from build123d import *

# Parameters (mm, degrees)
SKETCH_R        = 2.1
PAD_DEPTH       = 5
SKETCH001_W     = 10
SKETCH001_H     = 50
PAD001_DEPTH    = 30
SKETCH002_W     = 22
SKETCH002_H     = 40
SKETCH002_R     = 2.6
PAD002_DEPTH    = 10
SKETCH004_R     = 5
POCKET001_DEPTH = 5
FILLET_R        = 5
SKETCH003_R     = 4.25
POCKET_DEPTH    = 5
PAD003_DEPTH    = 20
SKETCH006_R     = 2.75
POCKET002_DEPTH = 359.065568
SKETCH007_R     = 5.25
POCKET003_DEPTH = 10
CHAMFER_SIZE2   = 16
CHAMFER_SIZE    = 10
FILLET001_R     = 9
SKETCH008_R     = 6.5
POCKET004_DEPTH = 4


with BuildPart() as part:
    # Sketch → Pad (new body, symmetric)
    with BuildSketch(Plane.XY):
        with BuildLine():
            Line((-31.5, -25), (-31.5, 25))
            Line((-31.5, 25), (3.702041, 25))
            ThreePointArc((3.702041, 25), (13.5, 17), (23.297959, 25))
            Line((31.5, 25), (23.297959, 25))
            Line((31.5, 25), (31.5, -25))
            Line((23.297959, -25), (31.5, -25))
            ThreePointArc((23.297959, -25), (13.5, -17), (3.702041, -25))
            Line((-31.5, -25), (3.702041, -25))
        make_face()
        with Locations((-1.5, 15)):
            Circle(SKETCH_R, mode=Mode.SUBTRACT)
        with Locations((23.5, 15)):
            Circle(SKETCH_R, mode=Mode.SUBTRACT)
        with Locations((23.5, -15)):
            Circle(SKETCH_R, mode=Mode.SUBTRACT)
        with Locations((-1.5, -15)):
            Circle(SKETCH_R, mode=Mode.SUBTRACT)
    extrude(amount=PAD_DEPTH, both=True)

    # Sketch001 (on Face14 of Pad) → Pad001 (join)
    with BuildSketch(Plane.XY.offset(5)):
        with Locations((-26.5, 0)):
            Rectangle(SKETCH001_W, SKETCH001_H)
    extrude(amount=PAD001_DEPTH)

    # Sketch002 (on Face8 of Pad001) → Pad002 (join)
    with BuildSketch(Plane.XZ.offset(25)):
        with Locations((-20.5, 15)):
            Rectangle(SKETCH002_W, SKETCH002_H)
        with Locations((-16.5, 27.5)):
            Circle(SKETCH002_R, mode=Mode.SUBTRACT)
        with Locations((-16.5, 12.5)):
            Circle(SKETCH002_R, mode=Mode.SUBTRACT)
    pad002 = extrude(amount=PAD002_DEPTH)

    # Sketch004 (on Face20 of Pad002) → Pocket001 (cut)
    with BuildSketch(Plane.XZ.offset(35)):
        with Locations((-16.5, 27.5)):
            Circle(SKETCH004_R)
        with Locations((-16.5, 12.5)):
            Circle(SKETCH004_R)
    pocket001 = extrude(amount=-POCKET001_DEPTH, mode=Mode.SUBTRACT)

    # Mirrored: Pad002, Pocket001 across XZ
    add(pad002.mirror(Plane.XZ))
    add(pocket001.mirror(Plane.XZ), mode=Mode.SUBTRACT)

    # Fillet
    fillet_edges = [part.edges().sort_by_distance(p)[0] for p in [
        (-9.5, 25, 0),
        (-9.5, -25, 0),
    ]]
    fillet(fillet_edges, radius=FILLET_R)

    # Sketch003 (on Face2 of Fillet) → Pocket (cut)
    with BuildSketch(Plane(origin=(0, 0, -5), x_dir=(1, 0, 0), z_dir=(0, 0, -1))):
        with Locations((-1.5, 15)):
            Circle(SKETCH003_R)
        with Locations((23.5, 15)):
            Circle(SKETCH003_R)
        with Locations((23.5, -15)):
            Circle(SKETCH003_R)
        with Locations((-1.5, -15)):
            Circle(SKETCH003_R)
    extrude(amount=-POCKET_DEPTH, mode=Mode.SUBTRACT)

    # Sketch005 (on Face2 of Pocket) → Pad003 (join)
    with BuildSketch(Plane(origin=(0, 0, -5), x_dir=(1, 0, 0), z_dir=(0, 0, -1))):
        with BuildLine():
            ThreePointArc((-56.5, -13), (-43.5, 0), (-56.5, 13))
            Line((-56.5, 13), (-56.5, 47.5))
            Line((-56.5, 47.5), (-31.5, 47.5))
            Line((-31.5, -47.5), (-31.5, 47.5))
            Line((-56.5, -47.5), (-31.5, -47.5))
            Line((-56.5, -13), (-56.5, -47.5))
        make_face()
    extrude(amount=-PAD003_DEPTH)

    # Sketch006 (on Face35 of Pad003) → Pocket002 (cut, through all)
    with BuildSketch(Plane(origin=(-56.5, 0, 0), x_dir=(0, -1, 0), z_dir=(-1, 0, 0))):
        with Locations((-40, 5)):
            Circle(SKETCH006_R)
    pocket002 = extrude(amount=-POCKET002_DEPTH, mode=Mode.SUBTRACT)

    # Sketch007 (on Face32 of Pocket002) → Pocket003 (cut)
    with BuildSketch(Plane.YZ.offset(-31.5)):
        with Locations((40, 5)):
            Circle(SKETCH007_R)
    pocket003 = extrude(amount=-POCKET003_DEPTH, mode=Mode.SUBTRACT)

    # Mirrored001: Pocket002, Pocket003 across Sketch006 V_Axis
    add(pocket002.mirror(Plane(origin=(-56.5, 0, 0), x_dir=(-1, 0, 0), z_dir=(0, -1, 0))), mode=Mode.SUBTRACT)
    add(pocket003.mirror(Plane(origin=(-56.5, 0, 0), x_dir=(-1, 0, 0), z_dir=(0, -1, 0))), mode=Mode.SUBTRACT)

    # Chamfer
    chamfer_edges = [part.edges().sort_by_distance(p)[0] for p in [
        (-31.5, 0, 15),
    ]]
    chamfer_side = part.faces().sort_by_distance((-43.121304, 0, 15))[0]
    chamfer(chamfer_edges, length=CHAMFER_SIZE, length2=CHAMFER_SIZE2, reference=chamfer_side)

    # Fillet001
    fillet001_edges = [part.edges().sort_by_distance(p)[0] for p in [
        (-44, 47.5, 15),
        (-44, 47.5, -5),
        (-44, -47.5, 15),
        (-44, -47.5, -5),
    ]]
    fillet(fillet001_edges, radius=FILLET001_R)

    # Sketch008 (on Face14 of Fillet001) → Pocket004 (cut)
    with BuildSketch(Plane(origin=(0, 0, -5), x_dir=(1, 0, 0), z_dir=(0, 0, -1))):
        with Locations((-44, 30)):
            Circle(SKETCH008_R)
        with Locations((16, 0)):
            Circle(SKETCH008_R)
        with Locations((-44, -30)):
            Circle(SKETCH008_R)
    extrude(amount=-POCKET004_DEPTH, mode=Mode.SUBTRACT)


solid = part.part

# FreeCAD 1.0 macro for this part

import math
import FreeCAD as App
import Part
import Sketcher
Q = App.Units.Quantity


def edges_at(feature, points):
    """Names of the edges that pass closest to the given points."""
    edges = feature.Shape.Edges
    near = lambda p: min(range(len(edges)), key=lambda i: edges[i].distToShape(Part.Vertex(*p))[0])
    return sorted({f"Edge{near(p) + 1}" for p in points})


def add_polygon(sketch, points):
    """Adds a closed chain of lines whose ends are joined by coincident constraints."""
    first, n = sketch.GeometryCount, len(points)
    for a, b in zip(points, points[1:] + points[:1]):
        sketch.addGeometry(Part.LineSegment(App.Vector(*a, 0), App.Vector(*b, 0)), False)
    for i in range(n):
        sketch.addConstraint(Sketcher.Constraint("Coincident", first + i, 2, first + (i + 1) % n, 1))

doc = App.newDocument("Part")
body = doc.addObject("PartDesign::Body", "Body")

# Sketch on XY plane
sketch1 = doc.addObject("Sketcher::SketchObject", "Sketch")
body.addObject(sketch1)
sketch1.AttachmentSupport = (doc.XY_Plane, [""])
sketch1.MapMode = "FlatFace"
sketch1.addGeometry([
    Part.LineSegment(App.Vector(-31.5, 25, 0), App.Vector(-31.5, -25, 0)),  # 0
    Part.LineSegment(App.Vector(-31.5, -25, 0), App.Vector(3.702041, -25, 0)),  # 1
    Part.ArcOfCircle(Part.Circle(App.Vector(13.5, -27, 0), App.Vector(0, 0, 1), 10), math.radians(11.536959), math.radians(168.463041)),  # 2
    Part.LineSegment(App.Vector(23.297959, -25, 0), App.Vector(31.5, -25, 0)),  # 3
    Part.LineSegment(App.Vector(31.5, -25, 0), App.Vector(31.5, 25, 0)),  # 4
    Part.LineSegment(App.Vector(31.5, 25, 0), App.Vector(23.297959, 25, 0)),  # 5
    Part.ArcOfCircle(Part.Circle(App.Vector(13.5, 27, 0), App.Vector(0, 0, 1), 10), math.radians(-168.463041), math.radians(-11.536959)),  # 6
    Part.LineSegment(App.Vector(3.702041, 25, 0), App.Vector(-31.5, 25, 0)),  # 7
    Part.Circle(App.Vector(23.5, -15, 0), App.Vector(0, 0, 1), 2.1),  # 8
    Part.Circle(App.Vector(-1.5, -15, 0), App.Vector(0, 0, 1), 2.1),  # 9
    Part.Circle(App.Vector(23.5, 15, 0), App.Vector(0, 0, 1), 2.1),  # 10
    Part.Circle(App.Vector(-1.5, 15, 0), App.Vector(0, 0, 1), 2.1),  # 11
], False)
sketch1.addConstraint([
    Sketcher.Constraint("Coincident", 0, 2, 1, 1),
    Sketcher.Constraint("Coincident", 1, 2, 2, 2),
    Sketcher.Constraint("Coincident", 2, 1, 3, 1),
    Sketcher.Constraint("Coincident", 3, 2, 4, 1),
    Sketcher.Constraint("Coincident", 4, 2, 5, 1),
    Sketcher.Constraint("Coincident", 5, 2, 6, 2),
    Sketcher.Constraint("Coincident", 6, 1, 7, 1),
    Sketcher.Constraint("Coincident", 7, 2, 0, 1),
    Sketcher.Constraint("Vertical", 0),
    Sketcher.Constraint("Horizontal", 1),
    Sketcher.Constraint("Horizontal", 3),
    Sketcher.Constraint("Vertical", 4),
    Sketcher.Constraint("Horizontal", 5),
    Sketcher.Constraint("Horizontal", 7),
    Sketcher.Constraint("Equal", 2, 6),
    Sketcher.Constraint("Equal", 8, 9),
    Sketcher.Constraint("Equal", 9, 10),
    Sketcher.Constraint("Equal", 10, 11),
    Sketcher.Constraint("Symmetric", 0, 2, 4, 2, -1, 1),
    Sketcher.Constraint("Symmetric", 2, 3, 6, 3, -1),
    Sketcher.Constraint("Symmetric", 8, 3, 10, 3, -1),
    Sketcher.Constraint("Symmetric", 9, 3, 11, 3, -1),
    Sketcher.Constraint("Horizontal", 8, 3, 9, 3),
    Sketcher.Constraint("Horizontal", 1, 2, 2, 1),
    Sketcher.Constraint("Horizontal", 5, 2, 6, 1),
    Sketcher.Constraint("Radius", 2, Q("10 mm")),
    Sketcher.Constraint("Diameter", 8, Q("4.2 mm")),
    Sketcher.Constraint("DistanceY", 0, 2, 0, 1, Q("50 mm")),
    Sketcher.Constraint("DistanceY", 2, 3, -1, 1, Q("27 mm")),
    Sketcher.Constraint("DistanceY", 8, 3, -1, 1, Q("15 mm")),
    Sketcher.Constraint("DistanceX", 2, 3, 8, 3, Q("10 mm")),
    Sketcher.Constraint("DistanceX", 9, 3, 2, 3, Q("15 mm")),
    Sketcher.Constraint("DistanceX", 0, 2, 9, 3, Q("30 mm")),
    Sketcher.Constraint("DistanceX", 8, 3, 3, 2, Q("8 mm")),
])
pad1 = doc.addObject("PartDesign::Pad", "Pad")
body.addObject(pad1)
pad1.Profile = sketch1
pad1.Length = 10
pad1.Midplane = True

# Sketch on XY plane
sketch2 = doc.addObject("Sketcher::SketchObject", "Sketch001")
body.addObject(sketch2)
sketch2.AttachmentSupport = (doc.XY_Plane, [""])
sketch2.MapMode = "FlatFace"
sketch2.AttachmentOffset = App.Placement(App.Vector(0, 0, 5), App.Rotation())
add_polygon(sketch2, [(-31.5, 25), (-31.5, -25), (-21.5, -25), (-21.5, 25)])  # lines 0-3
sketch2.addConstraint([
    Sketcher.Constraint("Vertical", 0),
    Sketcher.Constraint("Horizontal", 1),
    Sketcher.Constraint("Vertical", 2),
    Sketcher.Constraint("Horizontal", 3),
    Sketcher.Constraint("DistanceX", 1, 1, 1, 2, Q("10 mm")),
    Sketcher.Constraint("DistanceY", 0, 2, 0, 1, Q("50 mm")),
    Sketcher.Constraint("DistanceY", 0, 2, -1, 1, Q("25 mm")),
    Sketcher.Constraint("DistanceX", 0, 2, -1, 1, Q("31.5 mm")),
])
pad2 = doc.addObject("PartDesign::Pad", "Pad001")
body.addObject(pad2)
pad2.Profile = sketch2
pad2.Length = 30

# Sketch on XZ plane
sketch3 = doc.addObject("Sketcher::SketchObject", "Sketch002")
body.addObject(sketch3)
sketch3.AttachmentSupport = (doc.XZ_Plane, [""])
sketch3.MapMode = "FlatFace"
sketch3.AttachmentOffset = App.Placement(App.Vector(0, 0, 25), App.Rotation())
add_polygon(sketch3, [(-31.5, 35), (-31.5, -5), (-9.5, -5), (-9.5, 35)])  # lines 0-3
sketch3.addGeometry(Part.Circle(App.Vector(-16.5, 12.5, 0), App.Vector(0, 0, 1), 2.6), False)  # 4
sketch3.addGeometry(Part.Circle(App.Vector(-16.5, 27.5, 0), App.Vector(0, 0, 1), 2.6), False)  # 5
sketch3.addConstraint([
    Sketcher.Constraint("Vertical", 0),
    Sketcher.Constraint("Horizontal", 1),
    Sketcher.Constraint("Vertical", 2),
    Sketcher.Constraint("Horizontal", 3),
    Sketcher.Constraint("Equal", 4, 5),
    Sketcher.Constraint("Vertical", 4, 3, 5, 3),
    Sketcher.Constraint("Diameter", 4, Q("5.2 mm")),
    Sketcher.Constraint("DistanceX", 1, 1, 1, 2, Q("22 mm")),
    Sketcher.Constraint("DistanceY", 0, 2, 0, 1, Q("40 mm")),
    Sketcher.Constraint("DistanceY", 0, 2, -1, 1, Q("5 mm")),
    Sketcher.Constraint("DistanceY", 4, 3, 5, 3, Q("15 mm")),
    Sketcher.Constraint("DistanceX", 0, 2, 4, 3, Q("15 mm")),
    Sketcher.Constraint("DistanceX", 4, 3, -1, 1, Q("16.5 mm")),
    Sketcher.Constraint("DistanceY", -1, 1, 4, 3, Q("12.5 mm")),
])
pad3 = doc.addObject("PartDesign::Pad", "Pad002")
body.addObject(pad3)
pad3.Profile = sketch3
pad3.Length = 10

# Sketch on XZ plane
sketch4 = doc.addObject("Sketcher::SketchObject", "Sketch003")
body.addObject(sketch4)
sketch4.AttachmentSupport = (doc.XZ_Plane, [""])
sketch4.MapMode = "FlatFace"
sketch4.AttachmentOffset = App.Placement(App.Vector(0, 0, 35), App.Rotation())
sketch4.addGeometry([
    Part.Circle(App.Vector(-16.5, 27.5, 0), App.Vector(0, 0, 1), 5),
    Part.Circle(App.Vector(-16.5, 12.5, 0), App.Vector(0, 0, 1), 5),
], False)
sketch4.addConstraint([
    Sketcher.Constraint("Equal", 0, 1),
    Sketcher.Constraint("Vertical", 0, 3, 1, 3),
    Sketcher.Constraint("Diameter", 0, Q("10 mm")),
    Sketcher.Constraint("DistanceY", 1, 3, 0, 3, Q("15 mm")),
    Sketcher.Constraint("DistanceX", 0, 3, -1, 1, Q("16.5 mm")),
    Sketcher.Constraint("DistanceY", -1, 1, 0, 3, Q("27.5 mm")),
])
pocket1 = doc.addObject("PartDesign::Pocket", "Pocket")
body.addObject(pocket1)
pocket1.Profile = sketch4
pocket1.Length = 5
doc.recompute()

mirrored = doc.addObject("PartDesign::Mirrored", "Mirrored")
body.addObject(mirrored)
mirrored.Originals = [pad3, pocket1]
mirrored.MirrorPlane = (doc.XZ_Plane, [""])
body.Tip = mirrored
doc.recompute()

fillet = doc.addObject("PartDesign::Fillet", "Fillet")
body.addObject(fillet)
fillet.Base = (mirrored, edges_at(mirrored, [(-9.5, 25, 0), (-9.5, -25, 0)]))
fillet.Radius = 5

# Sketch on XY plane
sketch5 = doc.addObject("Sketcher::SketchObject", "Sketch004")
body.addObject(sketch5)
sketch5.AttachmentSupport = (doc.XY_Plane, [""])
sketch5.MapMode = "FlatFace"
sketch5.AttachmentOffset = App.Placement(App.Vector(0, 0, -5), App.Rotation())
sketch5.addGeometry([
    Part.Circle(App.Vector(-1.5, -15, 0), App.Vector(0, 0, 1), 4.25),
    Part.Circle(App.Vector(23.5, -15, 0), App.Vector(0, 0, 1), 4.25),
    Part.Circle(App.Vector(23.5, 15, 0), App.Vector(0, 0, 1), 4.25),
    Part.Circle(App.Vector(-1.5, 15, 0), App.Vector(0, 0, 1), 4.25),
], False)
sketch5.addConstraint([
    Sketcher.Constraint("Equal", 0, 1),
    Sketcher.Constraint("Equal", 1, 2),
    Sketcher.Constraint("Equal", 2, 3),
    Sketcher.Constraint("Symmetric", 1, 3, 2, 3, -1),
    Sketcher.Constraint("Symmetric", 0, 3, 3, 3, -1),
    Sketcher.Constraint("Horizontal", 0, 3, 1, 3),
    Sketcher.Constraint("Diameter", 0, Q("8.5 mm")),
    Sketcher.Constraint("DistanceY", 0, 3, -1, 1, Q("15 mm")),
    Sketcher.Constraint("DistanceX", 0, 3, 1, 3, Q("25 mm")),
    Sketcher.Constraint("DistanceX", 0, 3, -1, 1, Q("1.5 mm")),
])
pocket2 = doc.addObject("PartDesign::Pocket", "Pocket001")
body.addObject(pocket2)
pocket2.Profile = sketch5
pocket2.Length = 5
pocket2.Reversed = True

# Sketch on XY plane
sketch6 = doc.addObject("Sketcher::SketchObject", "Sketch005")
body.addObject(sketch6)
sketch6.AttachmentSupport = (doc.XY_Plane, [""])
sketch6.MapMode = "FlatFace"
sketch6.AttachmentOffset = App.Placement(App.Vector(0, 0, -5), App.Rotation())
sketch6.addGeometry([
    Part.ArcOfCircle(Part.Circle(App.Vector(-56.5, 0, 0), App.Vector(0, 0, 1), 13), math.radians(-90), math.radians(90)),  # 0
    Part.LineSegment(App.Vector(-56.5, 13, 0), App.Vector(-56.5, 47.5, 0)),  # 1
    Part.LineSegment(App.Vector(-56.5, 47.5, 0), App.Vector(-31.5, 47.5, 0)),  # 2
    Part.LineSegment(App.Vector(-31.5, 47.5, 0), App.Vector(-31.5, -47.5, 0)),  # 3
    Part.LineSegment(App.Vector(-31.5, -47.5, 0), App.Vector(-56.5, -47.5, 0)),  # 4
    Part.LineSegment(App.Vector(-56.5, -47.5, 0), App.Vector(-56.5, -13, 0)),  # 5
], False)
sketch6.addConstraint([
    Sketcher.Constraint("Coincident", 0, 2, 1, 1),
    Sketcher.Constraint("Coincident", 1, 2, 2, 1),
    Sketcher.Constraint("Coincident", 2, 2, 3, 1),
    Sketcher.Constraint("Coincident", 3, 2, 4, 1),
    Sketcher.Constraint("Coincident", 4, 2, 5, 1),
    Sketcher.Constraint("Coincident", 5, 2, 0, 1),
    Sketcher.Constraint("Vertical", 1),
    Sketcher.Constraint("Horizontal", 2),
    Sketcher.Constraint("Vertical", 3),
    Sketcher.Constraint("Horizontal", 4),
    Sketcher.Constraint("Vertical", 5),
    Sketcher.Constraint("Symmetric", 1, 2, 4, 2, -1),
    Sketcher.Constraint("PointOnObject", 0, 3, -1),
    Sketcher.Constraint("Radius", 0, Q("13 mm")),
    Sketcher.Constraint("DistanceX", 2, 1, 2, 2, Q("25 mm")),
    Sketcher.Constraint("DistanceY", 3, 2, 3, 1, Q("95 mm")),
    Sketcher.Constraint("DistanceX", 0, 3, 2, 2, Q("25 mm")),
    Sketcher.Constraint("DistanceX", 0, 3, -1, 1, Q("56.5 mm")),
])
pad4 = doc.addObject("PartDesign::Pad", "Pad003")
body.addObject(pad4)
pad4.Profile = sketch6
pad4.Length = 20

# Sketch on YZ plane
sketch7 = doc.addObject("Sketcher::SketchObject", "Sketch006")
body.addObject(sketch7)
sketch7.AttachmentSupport = (doc.YZ_Plane, [""])
sketch7.MapMode = "FlatFace"
sketch7.AttachmentOffset = App.Placement(App.Vector(0, 0, -56.5), App.Rotation())
sketch7.addGeometry(Part.Circle(App.Vector(40, 5, 0), App.Vector(0, 0, 1), 2.75), False)
sketch7.addConstraint([
    Sketcher.Constraint("Diameter", 0, Q("5.5 mm")),
    Sketcher.Constraint("DistanceX", -1, 1, 0, 3, Q("40 mm")),
    Sketcher.Constraint("DistanceY", -1, 1, 0, 3, Q("5 mm")),
])
pocket3 = doc.addObject("PartDesign::Pocket", "Pocket002")
body.addObject(pocket3)
pocket3.Profile = sketch7
pocket3.Type = "ThroughAll"
pocket3.Reversed = True

# Sketch on YZ plane
sketch8 = doc.addObject("Sketcher::SketchObject", "Sketch007")
body.addObject(sketch8)
sketch8.AttachmentSupport = (doc.YZ_Plane, [""])
sketch8.MapMode = "FlatFace"
sketch8.AttachmentOffset = App.Placement(App.Vector(0, 0, -31.5), App.Rotation())
sketch8.addGeometry(Part.Circle(App.Vector(40, 5, 0), App.Vector(0, 0, 1), 5.25), False)
sketch8.addConstraint([
    Sketcher.Constraint("Diameter", 0, Q("10.5 mm")),
    Sketcher.Constraint("DistanceX", -1, 1, 0, 3, Q("40 mm")),
    Sketcher.Constraint("DistanceY", -1, 1, 0, 3, Q("5 mm")),
])
pocket4 = doc.addObject("PartDesign::Pocket", "Pocket003")
body.addObject(pocket4)
pocket4.Profile = sketch8
pocket4.Length = 10
doc.recompute()

mirrored2 = doc.addObject("PartDesign::Mirrored", "Mirrored001")
body.addObject(mirrored2)
mirrored2.Originals = [pocket3, pocket4]
mirrored2.MirrorPlane = (doc.XZ_Plane, [""])
body.Tip = mirrored2
doc.recompute()

chamfer = doc.addObject("PartDesign::Chamfer", "Chamfer")
body.addObject(chamfer)
chamfer.Base = (mirrored2, edges_at(mirrored2, [(-31.5, 0, 15)]))
chamfer.ChamferType = "Two distances"
chamfer.Size = 10
chamfer.Size2 = 16
doc.recompute()

fillet2 = doc.addObject("PartDesign::Fillet", "Fillet001")
body.addObject(fillet2)
fillet2.Base = (chamfer, edges_at(chamfer, [
    (-44, 47.5, 15),
    (-44, 47.5, -5),
    (-44, -47.5, 15),
    (-44, -47.5, -5),
]))
fillet2.Radius = 9

# Sketch on XY plane
sketch9 = doc.addObject("Sketcher::SketchObject", "Sketch008")
body.addObject(sketch9)
sketch9.AttachmentSupport = (doc.XY_Plane, [""])
sketch9.MapMode = "FlatFace"
sketch9.AttachmentOffset = App.Placement(App.Vector(0, 0, -5), App.Rotation())
sketch9.addGeometry([
    Part.Circle(App.Vector(-44, -30, 0), App.Vector(0, 0, 1), 6.5),
    Part.Circle(App.Vector(16, 0, 0), App.Vector(0, 0, 1), 6.5),
    Part.Circle(App.Vector(-44, 30, 0), App.Vector(0, 0, 1), 6.5),
], False)
sketch9.addConstraint([
    Sketcher.Constraint("Equal", 0, 1),
    Sketcher.Constraint("Equal", 1, 2),
    Sketcher.Constraint("Symmetric", 0, 3, 2, 3, -1),
    Sketcher.Constraint("PointOnObject", 1, 3, -1),
    Sketcher.Constraint("Diameter", 0, Q("13 mm")),
    Sketcher.Constraint("DistanceX", 0, 3, -1, 1, Q("44 mm")),
    Sketcher.Constraint("DistanceY", 0, 3, -1, 1, Q("30 mm")),
    Sketcher.Constraint("DistanceX", -1, 1, 1, 3, Q("16 mm")),
])
pocket5 = doc.addObject("PartDesign::Pocket", "Pocket004")
body.addObject(pocket5)
pocket5.Profile = sketch9
pocket5.Length = 4
pocket5.Reversed = True

doc.recompute()
